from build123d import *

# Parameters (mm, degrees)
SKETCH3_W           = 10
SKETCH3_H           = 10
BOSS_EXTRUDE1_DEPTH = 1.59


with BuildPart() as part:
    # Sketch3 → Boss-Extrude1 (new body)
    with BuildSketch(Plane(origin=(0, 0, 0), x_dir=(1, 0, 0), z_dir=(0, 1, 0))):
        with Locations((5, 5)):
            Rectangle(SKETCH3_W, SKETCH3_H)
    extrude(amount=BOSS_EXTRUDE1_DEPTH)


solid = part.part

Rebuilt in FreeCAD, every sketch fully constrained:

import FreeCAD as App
import Part
import Sketcher
from FreeCAD import Vector


def add_polygon(sketch, points):
    """Adds a closed chain of lines whose ends are joined by coincident constraints."""
    first, n = sketch.GeometryCount, len(points)
    for a, b in zip(points, points[1:] + points[:1]):
        sketch.addGeometry(Part.LineSegment(App.Vector(*a, 0), App.Vector(*b, 0)), False)
    for i in range(n):
        sketch.addConstraint(Sketcher.Constraint("Coincident", first + i, 2, first + (i + 1) % n, 1))

doc = App.newDocument("Part")
body = doc.addObject("PartDesign::Body", "Body")

# Sketch on XZ plane
sketch1 = body.newObject("Sketcher::SketchObject", "Sketch")
sketch1.AttachmentSupport = (doc.getObject("XZ_Plane"), [""])
sketch1.MapMode = "FlatFace"
add_polygon(sketch1, [(0, -10), (0, 0), (10, 0), (10, -10)])  # lines 0-3
sketch1.addConstraint([
    Sketcher.Constraint("Vertical", 0),
    Sketcher.Constraint("Horizontal", 1),
    Sketcher.Constraint("Vertical", 2),
    Sketcher.Constraint("Horizontal", 3),
    Sketcher.Constraint("Coincident", 0, 2, -1, 1),
    Sketcher.Constraint("Equal", 3, 0),
    Sketcher.Constraint("DistanceX", 1, 1, 1, 2, 10.0),
])
pad1 = body.newObject("PartDesign::Pad", "Pad")
pad1.Profile = sketch1
pad1.Length = 1.59
pad1.Reversed = True

doc.recompute()
